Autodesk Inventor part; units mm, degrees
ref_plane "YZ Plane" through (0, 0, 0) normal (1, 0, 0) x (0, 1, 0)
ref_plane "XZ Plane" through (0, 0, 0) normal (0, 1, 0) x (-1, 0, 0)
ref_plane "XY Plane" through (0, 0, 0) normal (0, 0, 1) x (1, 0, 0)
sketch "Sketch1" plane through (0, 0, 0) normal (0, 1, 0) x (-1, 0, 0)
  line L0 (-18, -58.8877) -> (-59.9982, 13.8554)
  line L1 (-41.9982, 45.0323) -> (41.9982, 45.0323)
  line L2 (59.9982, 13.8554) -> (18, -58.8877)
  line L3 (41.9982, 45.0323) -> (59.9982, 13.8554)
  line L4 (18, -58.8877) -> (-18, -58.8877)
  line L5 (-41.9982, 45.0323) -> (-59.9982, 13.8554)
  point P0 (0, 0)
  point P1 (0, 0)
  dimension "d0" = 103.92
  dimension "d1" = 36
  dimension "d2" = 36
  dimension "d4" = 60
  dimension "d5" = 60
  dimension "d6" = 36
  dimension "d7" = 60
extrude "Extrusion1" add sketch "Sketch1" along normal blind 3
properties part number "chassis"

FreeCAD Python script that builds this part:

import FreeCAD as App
import Part
import Sketcher

V = App.Vector
Q = App.Units.Quantity

doc = App.newDocument("Part")
body = doc.addObject("PartDesign::Body", "Body")

# Sketch on XZ plane
sketch1 = doc.addObject("Sketcher::SketchObject", "Sketch")
body.addObject(sketch1)
sketch1.AttachmentSupport = (doc.XZ_Plane, [""])
sketch1.MapMode = "FlatFace"
sketch1.addGeometry([
    Part.LineSegment(V(59.9982, 13.8554, 0), V(18, -58.8877, 0)),  # 0
    Part.LineSegment(V(18, -58.8877, 0), V(-18, -58.8877, 0)),  # 1
    Part.LineSegment(V(-18, -58.8877, 0), V(-59.9982, 13.8554, 0)),  # 2
    Part.LineSegment(V(-59.9982, 13.8554, 0), V(-41.9982, 45.0323, 0)),  # 3
    Part.LineSegment(V(-41.9982, 45.0323, 0), V(41.9982, 45.0323, 0)),  # 4
    Part.LineSegment(V(41.9982, 45.0323, 0), V(59.9982, 13.8554, 0)),  # 5
], False)
sketch1.addConstraint([
    Sketcher.Constraint("Coincident", 0, 2, 1, 1),
    Sketcher.Constraint("Coincident", 1, 2, 2, 1),
    Sketcher.Constraint("Coincident", 2, 2, 3, 1),
    Sketcher.Constraint("Coincident", 3, 2, 4, 1),
    Sketcher.Constraint("Coincident", 4, 2, 5, 1),
    Sketcher.Constraint("Coincident", 5, 2, 0, 1),
    Sketcher.Constraint("Horizontal", 1),
    Sketcher.Constraint("Horizontal", 4),
    Sketcher.Constraint("Symmetric", 2, 2, 5, 2, -2),
    Sketcher.Constraint("Parallel", 0, 3),
    Sketcher.Constraint("Parallel", 2, 5),
    Sketcher.Constraint("Equal", 0, 2),
    Sketcher.Constraint("DistanceX", 1, 2, 1, 1, 36.0),
    Sketcher.Constraint("Angle", 3, Q("60 deg")),
    Sketcher.Constraint("Distance", 3, 36.0),
    Sketcher.Constraint("DistanceY", 1, 2, 3, 2, 103.92),
    Sketcher.Constraint("DistanceY", 0, 2, -1, 1, 58.8877),
])
pad1 = doc.addObject("PartDesign::Pad", "Pad")
body.addObject(pad1)
pad1.Profile = sketch1
pad1.Length = 3
pad1.Reversed = True

doc.recompute()
